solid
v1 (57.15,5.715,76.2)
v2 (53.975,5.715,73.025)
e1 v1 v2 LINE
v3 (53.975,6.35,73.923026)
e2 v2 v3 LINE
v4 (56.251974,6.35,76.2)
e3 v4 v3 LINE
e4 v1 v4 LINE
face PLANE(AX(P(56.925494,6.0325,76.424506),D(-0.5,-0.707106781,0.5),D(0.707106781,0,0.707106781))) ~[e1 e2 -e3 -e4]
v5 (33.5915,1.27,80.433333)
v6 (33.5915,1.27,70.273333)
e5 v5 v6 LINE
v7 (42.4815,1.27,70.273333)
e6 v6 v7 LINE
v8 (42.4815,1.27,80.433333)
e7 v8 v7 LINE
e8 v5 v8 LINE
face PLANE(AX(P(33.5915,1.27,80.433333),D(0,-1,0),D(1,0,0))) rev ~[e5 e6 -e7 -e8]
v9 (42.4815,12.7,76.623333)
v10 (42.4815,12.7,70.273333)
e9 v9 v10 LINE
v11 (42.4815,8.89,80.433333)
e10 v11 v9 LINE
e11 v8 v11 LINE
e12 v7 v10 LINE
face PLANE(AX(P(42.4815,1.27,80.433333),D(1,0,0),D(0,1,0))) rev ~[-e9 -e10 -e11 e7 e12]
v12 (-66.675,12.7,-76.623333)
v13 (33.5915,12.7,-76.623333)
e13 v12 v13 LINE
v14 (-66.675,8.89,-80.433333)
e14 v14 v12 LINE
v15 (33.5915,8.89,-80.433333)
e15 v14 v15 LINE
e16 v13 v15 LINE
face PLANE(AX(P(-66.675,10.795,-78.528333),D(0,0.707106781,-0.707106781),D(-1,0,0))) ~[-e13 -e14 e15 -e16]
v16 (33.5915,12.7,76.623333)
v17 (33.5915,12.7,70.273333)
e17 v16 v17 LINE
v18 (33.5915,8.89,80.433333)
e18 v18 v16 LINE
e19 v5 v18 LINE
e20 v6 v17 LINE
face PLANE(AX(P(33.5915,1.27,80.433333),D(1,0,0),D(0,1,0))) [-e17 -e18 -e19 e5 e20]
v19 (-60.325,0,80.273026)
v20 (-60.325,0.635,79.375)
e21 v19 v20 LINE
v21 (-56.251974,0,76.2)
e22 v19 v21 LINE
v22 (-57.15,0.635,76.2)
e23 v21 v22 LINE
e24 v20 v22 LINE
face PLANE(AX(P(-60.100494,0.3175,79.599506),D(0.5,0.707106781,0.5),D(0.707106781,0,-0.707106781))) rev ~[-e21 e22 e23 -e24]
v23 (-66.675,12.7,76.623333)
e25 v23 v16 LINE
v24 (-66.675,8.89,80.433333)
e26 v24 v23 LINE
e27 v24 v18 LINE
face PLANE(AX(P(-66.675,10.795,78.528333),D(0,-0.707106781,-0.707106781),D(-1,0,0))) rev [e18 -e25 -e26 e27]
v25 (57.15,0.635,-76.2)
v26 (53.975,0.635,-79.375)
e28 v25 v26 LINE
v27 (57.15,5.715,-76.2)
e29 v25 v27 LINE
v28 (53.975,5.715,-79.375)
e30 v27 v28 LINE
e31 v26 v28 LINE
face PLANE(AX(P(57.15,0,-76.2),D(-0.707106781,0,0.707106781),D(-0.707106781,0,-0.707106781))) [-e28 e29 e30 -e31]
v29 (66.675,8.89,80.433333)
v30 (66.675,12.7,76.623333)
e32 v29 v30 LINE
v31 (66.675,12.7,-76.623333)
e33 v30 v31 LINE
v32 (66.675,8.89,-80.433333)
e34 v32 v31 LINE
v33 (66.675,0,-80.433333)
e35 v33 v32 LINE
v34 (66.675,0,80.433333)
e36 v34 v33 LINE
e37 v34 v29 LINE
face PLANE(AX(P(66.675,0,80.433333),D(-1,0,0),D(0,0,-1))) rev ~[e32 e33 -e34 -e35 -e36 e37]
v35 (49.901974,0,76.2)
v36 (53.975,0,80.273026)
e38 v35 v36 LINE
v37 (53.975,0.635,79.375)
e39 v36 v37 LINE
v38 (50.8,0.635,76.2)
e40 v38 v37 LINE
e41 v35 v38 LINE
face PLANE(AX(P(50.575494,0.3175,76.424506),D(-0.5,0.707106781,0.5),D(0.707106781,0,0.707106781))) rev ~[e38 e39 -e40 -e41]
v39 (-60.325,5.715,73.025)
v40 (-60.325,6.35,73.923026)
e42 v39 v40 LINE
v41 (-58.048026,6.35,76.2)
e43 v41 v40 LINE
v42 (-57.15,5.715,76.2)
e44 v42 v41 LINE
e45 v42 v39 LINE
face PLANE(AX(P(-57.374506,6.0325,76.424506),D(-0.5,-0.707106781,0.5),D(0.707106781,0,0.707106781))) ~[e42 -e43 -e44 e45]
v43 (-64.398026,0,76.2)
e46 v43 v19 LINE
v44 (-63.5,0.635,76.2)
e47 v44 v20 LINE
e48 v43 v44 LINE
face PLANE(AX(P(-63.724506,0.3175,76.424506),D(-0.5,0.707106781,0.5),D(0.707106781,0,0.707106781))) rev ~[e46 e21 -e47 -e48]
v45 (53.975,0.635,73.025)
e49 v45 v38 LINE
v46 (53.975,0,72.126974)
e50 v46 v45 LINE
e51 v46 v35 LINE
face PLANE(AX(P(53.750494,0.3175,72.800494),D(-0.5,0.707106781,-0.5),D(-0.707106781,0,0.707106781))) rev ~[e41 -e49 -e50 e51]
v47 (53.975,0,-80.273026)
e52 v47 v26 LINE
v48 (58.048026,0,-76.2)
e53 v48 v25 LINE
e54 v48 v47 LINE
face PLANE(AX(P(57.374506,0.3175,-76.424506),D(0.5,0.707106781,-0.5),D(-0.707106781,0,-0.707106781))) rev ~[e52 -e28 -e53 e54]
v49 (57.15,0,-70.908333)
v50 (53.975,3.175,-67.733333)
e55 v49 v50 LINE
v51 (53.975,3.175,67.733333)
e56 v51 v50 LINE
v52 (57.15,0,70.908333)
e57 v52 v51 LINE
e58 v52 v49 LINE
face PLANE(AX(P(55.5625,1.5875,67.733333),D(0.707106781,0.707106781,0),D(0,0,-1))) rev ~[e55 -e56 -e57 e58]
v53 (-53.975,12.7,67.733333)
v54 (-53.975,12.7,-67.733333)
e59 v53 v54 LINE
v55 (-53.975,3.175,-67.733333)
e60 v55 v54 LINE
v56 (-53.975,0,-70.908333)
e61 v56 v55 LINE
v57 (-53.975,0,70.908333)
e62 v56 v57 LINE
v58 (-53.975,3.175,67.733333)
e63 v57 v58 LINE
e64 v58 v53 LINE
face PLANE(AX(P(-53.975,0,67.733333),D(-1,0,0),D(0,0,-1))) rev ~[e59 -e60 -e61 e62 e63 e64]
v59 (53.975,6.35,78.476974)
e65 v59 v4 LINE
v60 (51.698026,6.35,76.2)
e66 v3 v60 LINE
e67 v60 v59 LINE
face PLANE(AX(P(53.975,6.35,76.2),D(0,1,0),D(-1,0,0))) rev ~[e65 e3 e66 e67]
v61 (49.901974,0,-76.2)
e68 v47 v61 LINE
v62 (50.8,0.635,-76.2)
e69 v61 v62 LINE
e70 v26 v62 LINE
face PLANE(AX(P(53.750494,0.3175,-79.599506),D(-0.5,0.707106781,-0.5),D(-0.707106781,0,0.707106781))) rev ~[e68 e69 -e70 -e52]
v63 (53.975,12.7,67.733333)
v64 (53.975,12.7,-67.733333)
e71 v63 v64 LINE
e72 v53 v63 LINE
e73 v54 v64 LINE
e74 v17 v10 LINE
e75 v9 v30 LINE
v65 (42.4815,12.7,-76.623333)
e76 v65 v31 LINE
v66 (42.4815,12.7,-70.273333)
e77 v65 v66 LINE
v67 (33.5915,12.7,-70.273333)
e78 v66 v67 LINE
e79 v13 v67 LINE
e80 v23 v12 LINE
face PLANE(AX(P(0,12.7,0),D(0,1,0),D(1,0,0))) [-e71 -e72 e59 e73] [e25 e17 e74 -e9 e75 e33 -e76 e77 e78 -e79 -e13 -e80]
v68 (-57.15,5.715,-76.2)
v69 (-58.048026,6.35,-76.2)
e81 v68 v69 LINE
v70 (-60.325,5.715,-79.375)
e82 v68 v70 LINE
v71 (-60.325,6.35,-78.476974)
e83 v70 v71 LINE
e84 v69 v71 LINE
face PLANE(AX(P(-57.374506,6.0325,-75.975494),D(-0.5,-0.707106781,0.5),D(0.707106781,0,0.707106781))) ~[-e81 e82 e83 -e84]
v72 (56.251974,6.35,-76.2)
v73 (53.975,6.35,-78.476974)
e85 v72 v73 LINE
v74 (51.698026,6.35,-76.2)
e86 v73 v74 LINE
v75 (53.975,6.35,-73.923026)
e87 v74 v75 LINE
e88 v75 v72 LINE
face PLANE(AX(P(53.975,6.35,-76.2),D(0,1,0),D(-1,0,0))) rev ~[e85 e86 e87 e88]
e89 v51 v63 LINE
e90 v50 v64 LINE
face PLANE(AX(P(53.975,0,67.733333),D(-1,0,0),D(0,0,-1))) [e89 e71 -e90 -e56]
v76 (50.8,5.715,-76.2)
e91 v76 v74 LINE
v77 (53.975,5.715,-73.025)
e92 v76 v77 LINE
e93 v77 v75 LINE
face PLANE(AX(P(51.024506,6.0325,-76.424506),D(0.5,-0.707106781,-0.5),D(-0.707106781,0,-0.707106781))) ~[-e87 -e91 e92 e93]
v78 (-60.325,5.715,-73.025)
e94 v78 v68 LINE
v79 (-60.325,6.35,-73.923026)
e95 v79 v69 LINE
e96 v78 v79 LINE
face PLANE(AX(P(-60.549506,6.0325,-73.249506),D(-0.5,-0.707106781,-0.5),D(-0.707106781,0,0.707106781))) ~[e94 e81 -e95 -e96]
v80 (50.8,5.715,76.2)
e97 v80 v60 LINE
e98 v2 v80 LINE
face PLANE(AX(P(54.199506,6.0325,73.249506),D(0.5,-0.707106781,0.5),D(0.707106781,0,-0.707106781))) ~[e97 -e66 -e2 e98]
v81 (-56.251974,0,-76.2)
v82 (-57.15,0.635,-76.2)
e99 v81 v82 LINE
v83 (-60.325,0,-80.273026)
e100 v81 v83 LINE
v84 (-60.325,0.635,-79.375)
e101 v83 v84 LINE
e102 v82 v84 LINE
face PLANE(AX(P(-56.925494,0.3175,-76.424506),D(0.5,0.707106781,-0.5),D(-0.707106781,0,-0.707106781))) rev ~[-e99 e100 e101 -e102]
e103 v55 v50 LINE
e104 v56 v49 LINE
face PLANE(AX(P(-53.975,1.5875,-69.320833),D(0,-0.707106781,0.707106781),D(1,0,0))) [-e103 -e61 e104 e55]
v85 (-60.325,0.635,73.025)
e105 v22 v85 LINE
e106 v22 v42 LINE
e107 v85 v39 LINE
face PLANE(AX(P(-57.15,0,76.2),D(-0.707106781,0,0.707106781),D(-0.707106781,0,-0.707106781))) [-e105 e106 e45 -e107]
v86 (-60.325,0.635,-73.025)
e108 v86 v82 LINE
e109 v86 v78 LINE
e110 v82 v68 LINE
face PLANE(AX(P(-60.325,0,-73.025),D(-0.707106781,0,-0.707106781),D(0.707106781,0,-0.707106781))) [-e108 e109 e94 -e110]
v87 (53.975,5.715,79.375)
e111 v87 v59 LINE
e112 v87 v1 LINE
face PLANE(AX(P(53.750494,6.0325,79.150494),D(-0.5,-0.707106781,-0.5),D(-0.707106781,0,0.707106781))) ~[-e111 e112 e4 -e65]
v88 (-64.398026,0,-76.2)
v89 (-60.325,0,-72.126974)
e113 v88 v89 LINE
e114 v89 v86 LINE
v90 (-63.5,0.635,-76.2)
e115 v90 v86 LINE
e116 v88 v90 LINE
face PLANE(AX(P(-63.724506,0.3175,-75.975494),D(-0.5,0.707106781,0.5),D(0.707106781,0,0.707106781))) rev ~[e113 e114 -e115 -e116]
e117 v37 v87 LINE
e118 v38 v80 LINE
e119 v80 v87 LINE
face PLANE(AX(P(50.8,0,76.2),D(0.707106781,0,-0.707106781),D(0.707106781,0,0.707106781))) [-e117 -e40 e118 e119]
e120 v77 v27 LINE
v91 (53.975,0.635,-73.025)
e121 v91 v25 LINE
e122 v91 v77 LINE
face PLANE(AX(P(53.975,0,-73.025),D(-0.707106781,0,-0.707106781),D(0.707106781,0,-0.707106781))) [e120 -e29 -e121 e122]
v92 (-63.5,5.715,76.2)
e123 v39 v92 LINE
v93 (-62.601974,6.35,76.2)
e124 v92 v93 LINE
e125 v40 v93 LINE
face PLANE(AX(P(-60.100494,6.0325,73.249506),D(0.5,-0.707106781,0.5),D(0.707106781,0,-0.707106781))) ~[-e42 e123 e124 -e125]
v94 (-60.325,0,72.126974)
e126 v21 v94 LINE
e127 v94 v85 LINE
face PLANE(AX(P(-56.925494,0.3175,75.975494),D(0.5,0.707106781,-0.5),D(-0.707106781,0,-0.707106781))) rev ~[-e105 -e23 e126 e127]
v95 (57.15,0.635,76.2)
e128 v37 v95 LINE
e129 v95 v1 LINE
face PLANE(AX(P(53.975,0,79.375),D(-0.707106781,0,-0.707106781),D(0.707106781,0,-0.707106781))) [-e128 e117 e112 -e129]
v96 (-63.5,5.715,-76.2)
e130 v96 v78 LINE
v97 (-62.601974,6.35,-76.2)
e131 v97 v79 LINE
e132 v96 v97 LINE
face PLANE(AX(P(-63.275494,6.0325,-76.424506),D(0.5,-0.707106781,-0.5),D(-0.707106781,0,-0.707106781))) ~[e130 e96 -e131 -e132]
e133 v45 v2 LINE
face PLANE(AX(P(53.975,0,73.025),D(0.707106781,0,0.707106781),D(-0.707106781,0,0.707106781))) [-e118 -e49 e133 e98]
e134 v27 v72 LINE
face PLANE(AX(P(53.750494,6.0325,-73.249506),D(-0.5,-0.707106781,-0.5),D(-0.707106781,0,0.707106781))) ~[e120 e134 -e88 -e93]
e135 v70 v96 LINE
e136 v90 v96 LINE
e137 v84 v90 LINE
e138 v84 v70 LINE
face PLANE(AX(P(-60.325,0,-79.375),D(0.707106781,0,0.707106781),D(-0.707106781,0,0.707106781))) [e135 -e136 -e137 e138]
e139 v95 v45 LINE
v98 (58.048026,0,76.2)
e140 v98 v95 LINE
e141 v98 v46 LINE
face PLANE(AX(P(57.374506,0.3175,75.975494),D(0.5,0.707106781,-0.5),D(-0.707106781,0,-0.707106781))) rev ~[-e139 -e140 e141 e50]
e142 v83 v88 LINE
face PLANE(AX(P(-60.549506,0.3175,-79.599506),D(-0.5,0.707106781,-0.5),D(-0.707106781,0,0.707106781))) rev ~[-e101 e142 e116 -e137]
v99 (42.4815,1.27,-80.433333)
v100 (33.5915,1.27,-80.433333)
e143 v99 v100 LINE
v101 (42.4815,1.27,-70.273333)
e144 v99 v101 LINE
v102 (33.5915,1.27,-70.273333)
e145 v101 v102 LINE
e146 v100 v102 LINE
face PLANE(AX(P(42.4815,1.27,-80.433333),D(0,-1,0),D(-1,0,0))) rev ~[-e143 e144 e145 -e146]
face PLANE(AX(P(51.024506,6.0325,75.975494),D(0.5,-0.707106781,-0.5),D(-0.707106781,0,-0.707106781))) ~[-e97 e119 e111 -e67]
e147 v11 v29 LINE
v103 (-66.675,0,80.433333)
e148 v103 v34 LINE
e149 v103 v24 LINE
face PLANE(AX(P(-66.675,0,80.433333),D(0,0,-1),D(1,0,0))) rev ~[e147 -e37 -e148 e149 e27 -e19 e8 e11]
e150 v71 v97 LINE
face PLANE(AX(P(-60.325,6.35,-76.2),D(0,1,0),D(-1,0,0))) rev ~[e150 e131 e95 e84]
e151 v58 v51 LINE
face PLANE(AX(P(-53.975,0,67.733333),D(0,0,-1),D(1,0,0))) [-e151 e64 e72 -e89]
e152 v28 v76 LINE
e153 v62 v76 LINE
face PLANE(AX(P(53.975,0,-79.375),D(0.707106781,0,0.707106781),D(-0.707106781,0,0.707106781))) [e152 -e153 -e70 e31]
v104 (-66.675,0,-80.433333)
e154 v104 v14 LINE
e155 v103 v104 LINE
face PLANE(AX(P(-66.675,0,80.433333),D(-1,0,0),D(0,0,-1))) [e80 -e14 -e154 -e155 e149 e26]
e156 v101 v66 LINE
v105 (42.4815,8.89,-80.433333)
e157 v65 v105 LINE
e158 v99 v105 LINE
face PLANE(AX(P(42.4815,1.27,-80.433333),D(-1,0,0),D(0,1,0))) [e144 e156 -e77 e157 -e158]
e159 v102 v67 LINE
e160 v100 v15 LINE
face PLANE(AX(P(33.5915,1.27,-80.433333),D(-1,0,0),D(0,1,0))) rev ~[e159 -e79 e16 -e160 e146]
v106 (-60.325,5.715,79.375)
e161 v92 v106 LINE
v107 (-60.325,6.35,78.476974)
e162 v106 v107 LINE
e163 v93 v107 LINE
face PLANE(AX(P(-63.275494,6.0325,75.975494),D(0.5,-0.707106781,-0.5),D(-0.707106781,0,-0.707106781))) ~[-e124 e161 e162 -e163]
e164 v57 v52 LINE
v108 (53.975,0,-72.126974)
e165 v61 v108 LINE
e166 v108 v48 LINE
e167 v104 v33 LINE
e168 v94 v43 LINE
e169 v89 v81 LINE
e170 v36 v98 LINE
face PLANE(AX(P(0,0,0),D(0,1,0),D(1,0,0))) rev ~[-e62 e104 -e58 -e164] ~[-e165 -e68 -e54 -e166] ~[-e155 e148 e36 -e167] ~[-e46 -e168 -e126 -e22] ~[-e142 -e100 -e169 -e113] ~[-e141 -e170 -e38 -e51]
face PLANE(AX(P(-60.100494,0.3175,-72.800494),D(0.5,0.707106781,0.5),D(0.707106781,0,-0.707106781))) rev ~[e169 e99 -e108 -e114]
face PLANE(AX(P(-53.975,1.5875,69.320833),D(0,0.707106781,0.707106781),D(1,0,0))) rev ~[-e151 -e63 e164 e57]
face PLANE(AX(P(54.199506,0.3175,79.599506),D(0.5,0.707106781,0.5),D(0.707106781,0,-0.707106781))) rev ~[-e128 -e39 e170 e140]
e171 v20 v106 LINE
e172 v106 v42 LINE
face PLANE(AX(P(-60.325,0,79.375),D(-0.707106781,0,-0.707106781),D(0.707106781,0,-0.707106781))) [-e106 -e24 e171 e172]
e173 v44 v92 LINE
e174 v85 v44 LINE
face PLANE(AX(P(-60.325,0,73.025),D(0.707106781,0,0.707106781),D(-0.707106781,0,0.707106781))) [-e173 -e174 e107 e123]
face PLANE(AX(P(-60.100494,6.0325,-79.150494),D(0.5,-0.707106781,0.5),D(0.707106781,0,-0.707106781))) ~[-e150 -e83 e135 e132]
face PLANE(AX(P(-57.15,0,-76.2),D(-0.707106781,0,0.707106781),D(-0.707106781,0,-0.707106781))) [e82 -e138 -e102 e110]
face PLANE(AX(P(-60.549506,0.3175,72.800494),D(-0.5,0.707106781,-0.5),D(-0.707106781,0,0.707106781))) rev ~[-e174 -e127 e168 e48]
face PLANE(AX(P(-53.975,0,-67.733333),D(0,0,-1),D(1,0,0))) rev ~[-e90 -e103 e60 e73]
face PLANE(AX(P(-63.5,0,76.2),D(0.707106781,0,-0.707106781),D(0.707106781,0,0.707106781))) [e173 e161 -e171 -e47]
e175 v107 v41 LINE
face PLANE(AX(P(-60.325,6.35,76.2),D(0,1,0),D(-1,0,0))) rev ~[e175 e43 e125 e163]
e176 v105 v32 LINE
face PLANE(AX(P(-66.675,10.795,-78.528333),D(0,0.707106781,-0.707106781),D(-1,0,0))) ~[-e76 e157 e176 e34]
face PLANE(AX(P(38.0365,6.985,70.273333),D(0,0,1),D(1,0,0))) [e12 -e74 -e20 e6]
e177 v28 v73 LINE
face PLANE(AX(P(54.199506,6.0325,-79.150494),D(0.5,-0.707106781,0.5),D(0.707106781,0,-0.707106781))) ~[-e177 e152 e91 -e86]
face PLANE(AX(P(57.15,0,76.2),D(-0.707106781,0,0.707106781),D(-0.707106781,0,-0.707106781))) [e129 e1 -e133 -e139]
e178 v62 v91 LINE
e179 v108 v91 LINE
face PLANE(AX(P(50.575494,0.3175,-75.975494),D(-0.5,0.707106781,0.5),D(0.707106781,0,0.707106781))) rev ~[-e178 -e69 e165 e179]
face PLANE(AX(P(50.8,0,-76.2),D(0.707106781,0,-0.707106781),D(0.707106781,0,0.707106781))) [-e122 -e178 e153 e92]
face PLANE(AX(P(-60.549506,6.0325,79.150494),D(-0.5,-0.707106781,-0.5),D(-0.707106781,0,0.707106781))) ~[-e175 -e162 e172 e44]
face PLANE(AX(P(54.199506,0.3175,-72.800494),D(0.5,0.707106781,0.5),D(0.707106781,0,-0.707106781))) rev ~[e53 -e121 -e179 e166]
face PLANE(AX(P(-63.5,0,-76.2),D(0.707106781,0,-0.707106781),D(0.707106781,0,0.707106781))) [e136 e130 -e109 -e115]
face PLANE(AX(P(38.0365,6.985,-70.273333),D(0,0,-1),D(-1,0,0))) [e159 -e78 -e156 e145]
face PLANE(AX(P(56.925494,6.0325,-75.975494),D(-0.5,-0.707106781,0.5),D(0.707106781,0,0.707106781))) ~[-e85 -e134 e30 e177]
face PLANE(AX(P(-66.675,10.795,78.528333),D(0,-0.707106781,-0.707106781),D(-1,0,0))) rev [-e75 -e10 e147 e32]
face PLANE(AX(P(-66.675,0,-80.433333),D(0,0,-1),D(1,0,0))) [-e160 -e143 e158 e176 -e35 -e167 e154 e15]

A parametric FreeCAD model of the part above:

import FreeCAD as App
import Part
import Sketcher
from FreeCAD import Vector
Q = App.Units.Quantity


def edges_at(feature, points):
    """Names of the edges that pass closest to the given points."""
    edges = feature.Shape.Edges
    near = lambda p: min(range(len(edges)), key=lambda i: edges[i].distToShape(Part.Vertex(*p))[0])
    return sorted({f"Edge{near(p) + 1}" for p in points})


def add_polygon(sketch, points):
    """Adds a closed chain of lines whose ends are joined by coincident constraints."""
    first, n = sketch.GeometryCount, len(points)
    for a, b in zip(points, points[1:] + points[:1]):
        sketch.addGeometry(Part.LineSegment(App.Vector(*a, 0), App.Vector(*b, 0)), False)
    for i in range(n):
        sketch.addConstraint(Sketcher.Constraint("Coincident", first + i, 2, first + (i + 1) % n, 1))

doc = App.newDocument("Part")
body = doc.addObject("PartDesign::Body", "Body")

sketch1 = doc.addObject("Sketcher::SketchObject", "Sketch")
body.addObject(sketch1)
sketch1.AttachmentSupport = (doc.XZ_Plane, [""])
sketch1.MapMode = "FlatFace"
add_polygon(sketch1, [(-67, -80), (-67, 80), (67, 80), (67, -80)])
add_polygon(sketch1, [(54, 68), (-54, 68), (-54, -68), (54, -68)])
sketch1.addConstraint([
    Sketcher.Constraint("Vertical", 0),
    Sketcher.Constraint("Horizontal", 1),
    Sketcher.Constraint("Vertical", 2),
    Sketcher.Constraint("Horizontal", 3),
    Sketcher.Constraint("Horizontal", 4),
    Sketcher.Constraint("Vertical", 5),
    Sketcher.Constraint("Horizontal", 6),
    Sketcher.Constraint("Vertical", 7),
    Sketcher.Constraint("Symmetric", 0, 2, 2, 2, -1, 1),
    Sketcher.Constraint("Symmetric", 4, 2, 6, 2, -1, 1),
    Sketcher.Constraint("DistanceX", 1, 1, 1, 2, Q("5.25 in")),
    Sketcher.Constraint("DistanceX", 4, 2, 4, 1, Q("4.25 in")),
    Sketcher.Constraint("DistanceY", 4, 2, 0, 2, Q("0.5 in")),
    Sketcher.Constraint("DistanceY", 0, 1, 0, 2, 160.866667),
])
pad1 = doc.addObject("PartDesign::Pad", "Pad")
body.addObject(pad1)
pad1.Profile = sketch1
pad1.Length = Q("0.5 in")
pad1.Reversed = True

sketch2 = doc.addObject("Sketcher::SketchObject", "Sketch001")
body.addObject(sketch2)
sketch2.AttachmentSupport = (doc.XZ_Plane, [""])
sketch2.MapMode = "FlatFace"
add_polygon(sketch2, [(-60.3, 73), (-57.1, 76.2), (-60.3, 79.4), (-63.5, 76.2)])
add_polygon(sketch2, [(54, 73), (57.1, 76.2), (54, 79.4), (50.8, 76.2)])
add_polygon(sketch2, [(54, -79.4), (57.1, -76.2), (54, -73), (50.8, -76.2)])
add_polygon(sketch2, [(-60.3, -79.4), (-57.1, -76.2), (-60.3, -73), (-63.5, -76.2)])
sketch2.addConstraint([
    Sketcher.Constraint("Symmetric", 0, 2, 8, 2, -1, 1),
    Sketcher.Constraint("Symmetric", 4, 2, 12, 2, -1, 1),
    Sketcher.Constraint("Symmetric", 0, 2, 4, 2, -2),
    Sketcher.Constraint("Symmetric", 7, 2, 9, 2, -1),
    Sketcher.Constraint("Symmetric", 6, 2, 10, 2, -1),
    Sketcher.Constraint("Symmetric", 5, 2, 11, 2, -1),
    Sketcher.Constraint("Symmetric", 3, 2, 13, 2, -1),
    Sketcher.Constraint("Symmetric", 2, 2, 14, 2, -1),
    Sketcher.Constraint("Symmetric", 1, 2, 15, 2, -1),
    Sketcher.Constraint("Perpendicular", 0, 1),
    Sketcher.Constraint("Perpendicular", 1, 2),
    Sketcher.Constraint("Perpendicular", 2, 3),
    Sketcher.Constraint("Perpendicular", 3, 4),
    Sketcher.Constraint("Perpendicular", 4, 5),
    Sketcher.Constraint("Perpendicular", 5, 6),
    Sketcher.Constraint("Perpendicular", 6, 7),
    Sketcher.Constraint("Perpendicular", 7, 8),
    Sketcher.Constraint("Horizontal", 0, 2, 2, 2),
    Sketcher.Constraint("Horizontal", 1, 2, 5, 2),
    Sketcher.Constraint("Horizontal", 4, 2, 6, 2),
    Sketcher.Constraint("DistanceY", -1, 1, 0, 2, Q("3 in")),
    Sketcher.Constraint("DistanceX", -1, 1, 6, 2, Q("2 in")),
    Sketcher.Constraint("DistanceX", 2, 2, -1, 1, Q("2.5 in")),
])
pocket1 = doc.addObject("PartDesign::Pocket", "Pocket")
body.addObject(pocket1)
pocket1.Profile = sketch2
pocket1.Length = Q("0.25 in")
doc.recompute()

chamfer = doc.addObject("PartDesign::Chamfer", "Chamfer")
body.addObject(chamfer)
chamfer.Base = (pocket1, edges_at(pocket1, [(0, 12.7, -80.433), (0, 12.7, 80.433)]))
chamfer.Size = Q("0.15 in")
doc.recompute()

chamfer2 = doc.addObject("PartDesign::Chamfer", "Chamfer001")
body.addObject(chamfer2)
chamfer2.Base = (chamfer, edges_at(chamfer, [
    (-58.737, 6.35, -74.612),
    (-58.737, 6.35, -77.787),
    (-61.913, 6.35, -77.787),
    (-61.913, 6.35, -74.612),
    (-58.737, 0, -74.612),
    (-61.913, 0, -74.612),
    (-61.913, 0, -77.787),
    (-58.737, 0, -77.787),
    (55.562, 6.35, -74.612),
    (55.562, 6.35, -77.787),
    (52.388, 6.35, -77.787),
    (52.388, 6.35, -74.612),
    (55.562, 0, -74.612),
    (52.388, 0, -74.612),
    (52.388, 0, -77.787),
    (55.562, 0, -77.787),
    (55.562, 6.35, 77.787),
    (55.562, 6.35, 74.612),
    (52.388, 6.35, 74.612),
    (52.388, 6.35, 77.787),
    (55.562, 0, 77.787),
    (52.388, 0, 77.787),
    (52.388, 0, 74.612),
    (55.562, 0, 74.612),
    (-58.737, 6.35, 77.787),
    (-58.737, 6.35, 74.612),
    (-61.913, 6.35, 74.612),
    (-61.913, 6.35, 77.787),
    (-58.737, 0, 77.787),
    (-61.913, 0, 77.787),
    (-61.913, 0, 74.612),
    (-58.737, 0, 74.612),
]))
chamfer2.Size = Q("0.025 in")
doc.recompute()

chamfer3 = doc.addObject("PartDesign::Chamfer", "Chamfer002")
body.addObject(chamfer3)
chamfer3.Base = (chamfer2, edges_at(chamfer2, [(53.975, 0, 0), (0, 0, -67.733), (0, 0, 67.733)]))
chamfer3.Size = Q("0.125 in")

sketch3 = doc.addObject("Sketcher::SketchObject", "Sketch002")
body.addObject(sketch3)
sketch3.AttachmentSupport = (doc.XY_Plane, [""])
sketch3.MapMode = "FlatFace"
sketch3.AttachmentOffset = App.Placement(Vector(0, 0, 80.433333), App.Rotation())
add_polygon(sketch3, [(34, 13), (34, 1), (42, 1), (42, 13)])
sketch3.addConstraint([
    Sketcher.Constraint("Vertical", 0),
    Sketcher.Constraint("Horizontal", 1),
    Sketcher.Constraint("Vertical", 2),
    Sketcher.Constraint("Horizontal", 3),
    Sketcher.Constraint("DistanceX", 1, 1, 1, 2, Q("0.35 in")),
    Sketcher.Constraint("DistanceY", 0, 2, 0, 1, Q("0.45 in")),
    Sketcher.Constraint("DistanceY", -1, 1, 2, 2, Q("0.5 in")),
    Sketcher.Constraint("DistanceX", -1, 1, 0, 2, Q("1.3225 in")),
])
pocket2 = doc.addObject("PartDesign::Pocket", "Pocket001")
body.addObject(pocket2)
pocket2.Profile = sketch3
pocket2.Length = Q("0.4 in")

sketch4 = doc.addObject("Sketcher::SketchObject", "Sketch003")
body.addObject(sketch4)
sketch4.AttachmentSupport = (doc.XY_Plane, [""])
sketch4.MapMode = "FlatFace"
sketch4.AttachmentOffset = App.Placement(Vector(0, 0, -80.433333), App.Rotation())
add_polygon(sketch4, [(42, 13), (42, 1), (34, 1), (34, 13)])
sketch4.addConstraint([
    Sketcher.Constraint("Vertical", 0),
    Sketcher.Constraint("Horizontal", 1),
    Sketcher.Constraint("Vertical", 2),
    Sketcher.Constraint("Horizontal", 3),
    Sketcher.Constraint("DistanceX", 1, 2, 1, 1, Q("0.35 in")),
    Sketcher.Constraint("DistanceY", 0, 2, 0, 1, Q("0.45 in")),
    Sketcher.Constraint("DistanceY", -1, 1, 2, 2, Q("0.5 in")),
    Sketcher.Constraint("DistanceX", -1, 1, 0, 2, Q("1.6725 in")),
])
pocket3 = doc.addObject("PartDesign::Pocket", "Pocket002")
body.addObject(pocket3)
pocket3.Profile = sketch4
pocket3.Length = Q("0.4 in")
pocket3.Reversed = True

doc.recompute()
